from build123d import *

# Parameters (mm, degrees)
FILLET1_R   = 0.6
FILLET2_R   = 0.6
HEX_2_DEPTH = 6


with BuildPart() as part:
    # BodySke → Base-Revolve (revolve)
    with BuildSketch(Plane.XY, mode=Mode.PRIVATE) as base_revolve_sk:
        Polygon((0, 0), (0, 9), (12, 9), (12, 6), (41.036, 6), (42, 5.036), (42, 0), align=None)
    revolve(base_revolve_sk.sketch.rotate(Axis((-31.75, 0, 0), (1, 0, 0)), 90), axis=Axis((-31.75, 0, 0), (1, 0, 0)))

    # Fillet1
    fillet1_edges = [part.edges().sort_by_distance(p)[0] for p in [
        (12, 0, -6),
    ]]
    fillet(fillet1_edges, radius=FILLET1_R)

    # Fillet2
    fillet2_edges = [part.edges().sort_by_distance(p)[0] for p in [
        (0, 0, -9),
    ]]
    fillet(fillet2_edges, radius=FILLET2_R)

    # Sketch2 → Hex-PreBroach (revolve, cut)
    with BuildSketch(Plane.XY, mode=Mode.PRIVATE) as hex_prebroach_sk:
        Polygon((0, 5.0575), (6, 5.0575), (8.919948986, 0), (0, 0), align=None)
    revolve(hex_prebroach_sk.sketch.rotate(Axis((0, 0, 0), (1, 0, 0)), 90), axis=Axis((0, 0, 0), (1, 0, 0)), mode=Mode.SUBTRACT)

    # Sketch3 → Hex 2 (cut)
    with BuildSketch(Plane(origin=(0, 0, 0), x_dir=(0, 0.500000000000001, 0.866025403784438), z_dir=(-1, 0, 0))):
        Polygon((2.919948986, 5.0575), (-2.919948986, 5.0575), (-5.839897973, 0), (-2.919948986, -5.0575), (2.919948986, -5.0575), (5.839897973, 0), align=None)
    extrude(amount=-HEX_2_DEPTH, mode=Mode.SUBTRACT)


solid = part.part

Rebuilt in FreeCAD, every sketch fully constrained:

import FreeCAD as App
import Part
import Sketcher
Q = App.Units.Quantity


def edges_at(feature, points):
    """Names of the edges that pass closest to the given points."""
    edges = feature.Shape.Edges
    near = lambda p: min(range(len(edges)), key=lambda i: edges[i].distToShape(Part.Vertex(*p))[0])
    return sorted({f"Edge{near(p) + 1}" for p in points})


def add_polygon(sketch, points):
    """Adds a closed chain of lines whose ends are joined by coincident constraints."""
    first, n = sketch.GeometryCount, len(points)
    for a, b in zip(points, points[1:] + points[:1]):
        sketch.addGeometry(Part.LineSegment(App.Vector(*a, 0), App.Vector(*b, 0)), False)
    for i in range(n):
        sketch.addConstraint(Sketcher.Constraint("Coincident", first + i, 2, first + (i + 1) % n, 1))

doc = App.newDocument("Part")
body = doc.addObject("PartDesign::Body", "Body")

# Sketch on XY plane
sketch1 = body.newObject("Sketcher::SketchObject", "Sketch")
sketch1.AttachmentSupport = (doc.getObject("XY_Plane"), [""])
sketch1.MapMode = "FlatFace"
add_polygon(sketch1, [(0, 9), (0, 0), (42, 0), (42, 5), (41, 6), (12, 6), (12, 9)])  # lines 0-6
sketch1.addConstraint([
    Sketcher.Constraint("Vertical", 0),
    Sketcher.Constraint("Horizontal", 1),
    Sketcher.Constraint("Vertical", 2),
    Sketcher.Constraint("Horizontal", 4),
    Sketcher.Constraint("Vertical", 5),
    Sketcher.Constraint("Horizontal", 6),
    Sketcher.Constraint("Coincident", 0, 2, -1, 1),
    Sketcher.Constraint("DistanceX", 1, 1, 1, 2, Q("42 mm")),
    Sketcher.Constraint("DistanceX", 6, 2, 6, 1, Q("12 mm")),
    Sketcher.Constraint("DistanceY", 0, 2, 0, 1, Q("9 mm")),
    Sketcher.Constraint("DistanceY", 5, 1, 5, 2, Q("3 mm")),
    Sketcher.Constraint("Angle", 3, Q("135 deg")),
    Sketcher.Constraint("DistanceX", 4, 2, 4, 1, Q("29.036 mm")),
])
revolution = body.newObject("PartDesign::Revolution", "Revolution")
revolution.Profile = sketch1
revolution.ReferenceAxis = (sketch1, ["H_Axis"])
revolution.Angle = 360
doc.recompute()

fillet = body.newObject("PartDesign::Fillet", "Fillet")
fillet.Base = (revolution, edges_at(revolution, [(12, 0, -6)]))
fillet.Radius = 0.6
doc.recompute()

fillet2 = body.newObject("PartDesign::Fillet", "Fillet001")
fillet2.Base = (fillet, edges_at(fillet, [(0, 0, -9)]))
fillet2.Radius = 0.6

# Sketch on XY plane
sketch2 = body.newObject("Sketcher::SketchObject", "Sketch001")
sketch2.AttachmentSupport = (doc.getObject("XY_Plane"), [""])
sketch2.MapMode = "FlatFace"
add_polygon(sketch2, [(6, 5), (0, 5), (0, 0), (9, 0)])  # lines 0-3
sketch2.addConstraint([
    Sketcher.Constraint("Horizontal", 0),
    Sketcher.Constraint("Vertical", 1),
    Sketcher.Constraint("Horizontal", 2),
    Sketcher.Constraint("Coincident", 1, 2, -1, 1),
    Sketcher.Constraint("DistanceX", 0, 2, 0, 1, Q("6 mm")),
    Sketcher.Constraint("Angle", 3, Q("120 deg")),
    Sketcher.Constraint("DistanceY", 1, 2, 1, 1, Q("5.0575 mm")),
])
groove = body.newObject("PartDesign::Groove", "Groove")
groove.Profile = sketch2
groove.ReferenceAxis = (sketch2, ["H_Axis"])
groove.Angle = 360

# Sketch on YZ plane
sketch3 = body.newObject("Sketcher::SketchObject", "Sketch002")
sketch3.AttachmentSupport = (doc.getObject("YZ_Plane"), [""])
sketch3.MapMode = "FlatFace"
add_polygon(sketch3, [(6, 0), (3, -5), (-3, -5), (-6, 0), (-3, 5), (3, 5)])  # lines 0-5
sketch3.addConstraint([
    Sketcher.Constraint("Horizontal", 1),
    Sketcher.Constraint("Horizontal", 4),
    Sketcher.Constraint("Symmetric", 0, 2, 3, 2, -1, 1),
    Sketcher.Constraint("Symmetric", 2, 2, 5, 2, -1, 1),
    Sketcher.Constraint("PointOnObject", 2, 2, -1),
    Sketcher.Constraint("Parallel", 2, 5),
    Sketcher.Constraint("Vertical", 1, 2, 3, 2),
    Sketcher.Constraint("Angle", 0, Q("-120 deg")),
    Sketcher.Constraint("DistanceY", 1, 2, 3, 2, Q("10.115 mm")),
    Sketcher.Constraint("DistanceX", 1, 2, 1, 1, Q("5.839898 mm")),
])
pocket1 = body.newObject("PartDesign::Pocket", "Pocket")
pocket1.Profile = sketch3
pocket1.Length = 6
pocket1.Reversed = True

doc.recompute()
